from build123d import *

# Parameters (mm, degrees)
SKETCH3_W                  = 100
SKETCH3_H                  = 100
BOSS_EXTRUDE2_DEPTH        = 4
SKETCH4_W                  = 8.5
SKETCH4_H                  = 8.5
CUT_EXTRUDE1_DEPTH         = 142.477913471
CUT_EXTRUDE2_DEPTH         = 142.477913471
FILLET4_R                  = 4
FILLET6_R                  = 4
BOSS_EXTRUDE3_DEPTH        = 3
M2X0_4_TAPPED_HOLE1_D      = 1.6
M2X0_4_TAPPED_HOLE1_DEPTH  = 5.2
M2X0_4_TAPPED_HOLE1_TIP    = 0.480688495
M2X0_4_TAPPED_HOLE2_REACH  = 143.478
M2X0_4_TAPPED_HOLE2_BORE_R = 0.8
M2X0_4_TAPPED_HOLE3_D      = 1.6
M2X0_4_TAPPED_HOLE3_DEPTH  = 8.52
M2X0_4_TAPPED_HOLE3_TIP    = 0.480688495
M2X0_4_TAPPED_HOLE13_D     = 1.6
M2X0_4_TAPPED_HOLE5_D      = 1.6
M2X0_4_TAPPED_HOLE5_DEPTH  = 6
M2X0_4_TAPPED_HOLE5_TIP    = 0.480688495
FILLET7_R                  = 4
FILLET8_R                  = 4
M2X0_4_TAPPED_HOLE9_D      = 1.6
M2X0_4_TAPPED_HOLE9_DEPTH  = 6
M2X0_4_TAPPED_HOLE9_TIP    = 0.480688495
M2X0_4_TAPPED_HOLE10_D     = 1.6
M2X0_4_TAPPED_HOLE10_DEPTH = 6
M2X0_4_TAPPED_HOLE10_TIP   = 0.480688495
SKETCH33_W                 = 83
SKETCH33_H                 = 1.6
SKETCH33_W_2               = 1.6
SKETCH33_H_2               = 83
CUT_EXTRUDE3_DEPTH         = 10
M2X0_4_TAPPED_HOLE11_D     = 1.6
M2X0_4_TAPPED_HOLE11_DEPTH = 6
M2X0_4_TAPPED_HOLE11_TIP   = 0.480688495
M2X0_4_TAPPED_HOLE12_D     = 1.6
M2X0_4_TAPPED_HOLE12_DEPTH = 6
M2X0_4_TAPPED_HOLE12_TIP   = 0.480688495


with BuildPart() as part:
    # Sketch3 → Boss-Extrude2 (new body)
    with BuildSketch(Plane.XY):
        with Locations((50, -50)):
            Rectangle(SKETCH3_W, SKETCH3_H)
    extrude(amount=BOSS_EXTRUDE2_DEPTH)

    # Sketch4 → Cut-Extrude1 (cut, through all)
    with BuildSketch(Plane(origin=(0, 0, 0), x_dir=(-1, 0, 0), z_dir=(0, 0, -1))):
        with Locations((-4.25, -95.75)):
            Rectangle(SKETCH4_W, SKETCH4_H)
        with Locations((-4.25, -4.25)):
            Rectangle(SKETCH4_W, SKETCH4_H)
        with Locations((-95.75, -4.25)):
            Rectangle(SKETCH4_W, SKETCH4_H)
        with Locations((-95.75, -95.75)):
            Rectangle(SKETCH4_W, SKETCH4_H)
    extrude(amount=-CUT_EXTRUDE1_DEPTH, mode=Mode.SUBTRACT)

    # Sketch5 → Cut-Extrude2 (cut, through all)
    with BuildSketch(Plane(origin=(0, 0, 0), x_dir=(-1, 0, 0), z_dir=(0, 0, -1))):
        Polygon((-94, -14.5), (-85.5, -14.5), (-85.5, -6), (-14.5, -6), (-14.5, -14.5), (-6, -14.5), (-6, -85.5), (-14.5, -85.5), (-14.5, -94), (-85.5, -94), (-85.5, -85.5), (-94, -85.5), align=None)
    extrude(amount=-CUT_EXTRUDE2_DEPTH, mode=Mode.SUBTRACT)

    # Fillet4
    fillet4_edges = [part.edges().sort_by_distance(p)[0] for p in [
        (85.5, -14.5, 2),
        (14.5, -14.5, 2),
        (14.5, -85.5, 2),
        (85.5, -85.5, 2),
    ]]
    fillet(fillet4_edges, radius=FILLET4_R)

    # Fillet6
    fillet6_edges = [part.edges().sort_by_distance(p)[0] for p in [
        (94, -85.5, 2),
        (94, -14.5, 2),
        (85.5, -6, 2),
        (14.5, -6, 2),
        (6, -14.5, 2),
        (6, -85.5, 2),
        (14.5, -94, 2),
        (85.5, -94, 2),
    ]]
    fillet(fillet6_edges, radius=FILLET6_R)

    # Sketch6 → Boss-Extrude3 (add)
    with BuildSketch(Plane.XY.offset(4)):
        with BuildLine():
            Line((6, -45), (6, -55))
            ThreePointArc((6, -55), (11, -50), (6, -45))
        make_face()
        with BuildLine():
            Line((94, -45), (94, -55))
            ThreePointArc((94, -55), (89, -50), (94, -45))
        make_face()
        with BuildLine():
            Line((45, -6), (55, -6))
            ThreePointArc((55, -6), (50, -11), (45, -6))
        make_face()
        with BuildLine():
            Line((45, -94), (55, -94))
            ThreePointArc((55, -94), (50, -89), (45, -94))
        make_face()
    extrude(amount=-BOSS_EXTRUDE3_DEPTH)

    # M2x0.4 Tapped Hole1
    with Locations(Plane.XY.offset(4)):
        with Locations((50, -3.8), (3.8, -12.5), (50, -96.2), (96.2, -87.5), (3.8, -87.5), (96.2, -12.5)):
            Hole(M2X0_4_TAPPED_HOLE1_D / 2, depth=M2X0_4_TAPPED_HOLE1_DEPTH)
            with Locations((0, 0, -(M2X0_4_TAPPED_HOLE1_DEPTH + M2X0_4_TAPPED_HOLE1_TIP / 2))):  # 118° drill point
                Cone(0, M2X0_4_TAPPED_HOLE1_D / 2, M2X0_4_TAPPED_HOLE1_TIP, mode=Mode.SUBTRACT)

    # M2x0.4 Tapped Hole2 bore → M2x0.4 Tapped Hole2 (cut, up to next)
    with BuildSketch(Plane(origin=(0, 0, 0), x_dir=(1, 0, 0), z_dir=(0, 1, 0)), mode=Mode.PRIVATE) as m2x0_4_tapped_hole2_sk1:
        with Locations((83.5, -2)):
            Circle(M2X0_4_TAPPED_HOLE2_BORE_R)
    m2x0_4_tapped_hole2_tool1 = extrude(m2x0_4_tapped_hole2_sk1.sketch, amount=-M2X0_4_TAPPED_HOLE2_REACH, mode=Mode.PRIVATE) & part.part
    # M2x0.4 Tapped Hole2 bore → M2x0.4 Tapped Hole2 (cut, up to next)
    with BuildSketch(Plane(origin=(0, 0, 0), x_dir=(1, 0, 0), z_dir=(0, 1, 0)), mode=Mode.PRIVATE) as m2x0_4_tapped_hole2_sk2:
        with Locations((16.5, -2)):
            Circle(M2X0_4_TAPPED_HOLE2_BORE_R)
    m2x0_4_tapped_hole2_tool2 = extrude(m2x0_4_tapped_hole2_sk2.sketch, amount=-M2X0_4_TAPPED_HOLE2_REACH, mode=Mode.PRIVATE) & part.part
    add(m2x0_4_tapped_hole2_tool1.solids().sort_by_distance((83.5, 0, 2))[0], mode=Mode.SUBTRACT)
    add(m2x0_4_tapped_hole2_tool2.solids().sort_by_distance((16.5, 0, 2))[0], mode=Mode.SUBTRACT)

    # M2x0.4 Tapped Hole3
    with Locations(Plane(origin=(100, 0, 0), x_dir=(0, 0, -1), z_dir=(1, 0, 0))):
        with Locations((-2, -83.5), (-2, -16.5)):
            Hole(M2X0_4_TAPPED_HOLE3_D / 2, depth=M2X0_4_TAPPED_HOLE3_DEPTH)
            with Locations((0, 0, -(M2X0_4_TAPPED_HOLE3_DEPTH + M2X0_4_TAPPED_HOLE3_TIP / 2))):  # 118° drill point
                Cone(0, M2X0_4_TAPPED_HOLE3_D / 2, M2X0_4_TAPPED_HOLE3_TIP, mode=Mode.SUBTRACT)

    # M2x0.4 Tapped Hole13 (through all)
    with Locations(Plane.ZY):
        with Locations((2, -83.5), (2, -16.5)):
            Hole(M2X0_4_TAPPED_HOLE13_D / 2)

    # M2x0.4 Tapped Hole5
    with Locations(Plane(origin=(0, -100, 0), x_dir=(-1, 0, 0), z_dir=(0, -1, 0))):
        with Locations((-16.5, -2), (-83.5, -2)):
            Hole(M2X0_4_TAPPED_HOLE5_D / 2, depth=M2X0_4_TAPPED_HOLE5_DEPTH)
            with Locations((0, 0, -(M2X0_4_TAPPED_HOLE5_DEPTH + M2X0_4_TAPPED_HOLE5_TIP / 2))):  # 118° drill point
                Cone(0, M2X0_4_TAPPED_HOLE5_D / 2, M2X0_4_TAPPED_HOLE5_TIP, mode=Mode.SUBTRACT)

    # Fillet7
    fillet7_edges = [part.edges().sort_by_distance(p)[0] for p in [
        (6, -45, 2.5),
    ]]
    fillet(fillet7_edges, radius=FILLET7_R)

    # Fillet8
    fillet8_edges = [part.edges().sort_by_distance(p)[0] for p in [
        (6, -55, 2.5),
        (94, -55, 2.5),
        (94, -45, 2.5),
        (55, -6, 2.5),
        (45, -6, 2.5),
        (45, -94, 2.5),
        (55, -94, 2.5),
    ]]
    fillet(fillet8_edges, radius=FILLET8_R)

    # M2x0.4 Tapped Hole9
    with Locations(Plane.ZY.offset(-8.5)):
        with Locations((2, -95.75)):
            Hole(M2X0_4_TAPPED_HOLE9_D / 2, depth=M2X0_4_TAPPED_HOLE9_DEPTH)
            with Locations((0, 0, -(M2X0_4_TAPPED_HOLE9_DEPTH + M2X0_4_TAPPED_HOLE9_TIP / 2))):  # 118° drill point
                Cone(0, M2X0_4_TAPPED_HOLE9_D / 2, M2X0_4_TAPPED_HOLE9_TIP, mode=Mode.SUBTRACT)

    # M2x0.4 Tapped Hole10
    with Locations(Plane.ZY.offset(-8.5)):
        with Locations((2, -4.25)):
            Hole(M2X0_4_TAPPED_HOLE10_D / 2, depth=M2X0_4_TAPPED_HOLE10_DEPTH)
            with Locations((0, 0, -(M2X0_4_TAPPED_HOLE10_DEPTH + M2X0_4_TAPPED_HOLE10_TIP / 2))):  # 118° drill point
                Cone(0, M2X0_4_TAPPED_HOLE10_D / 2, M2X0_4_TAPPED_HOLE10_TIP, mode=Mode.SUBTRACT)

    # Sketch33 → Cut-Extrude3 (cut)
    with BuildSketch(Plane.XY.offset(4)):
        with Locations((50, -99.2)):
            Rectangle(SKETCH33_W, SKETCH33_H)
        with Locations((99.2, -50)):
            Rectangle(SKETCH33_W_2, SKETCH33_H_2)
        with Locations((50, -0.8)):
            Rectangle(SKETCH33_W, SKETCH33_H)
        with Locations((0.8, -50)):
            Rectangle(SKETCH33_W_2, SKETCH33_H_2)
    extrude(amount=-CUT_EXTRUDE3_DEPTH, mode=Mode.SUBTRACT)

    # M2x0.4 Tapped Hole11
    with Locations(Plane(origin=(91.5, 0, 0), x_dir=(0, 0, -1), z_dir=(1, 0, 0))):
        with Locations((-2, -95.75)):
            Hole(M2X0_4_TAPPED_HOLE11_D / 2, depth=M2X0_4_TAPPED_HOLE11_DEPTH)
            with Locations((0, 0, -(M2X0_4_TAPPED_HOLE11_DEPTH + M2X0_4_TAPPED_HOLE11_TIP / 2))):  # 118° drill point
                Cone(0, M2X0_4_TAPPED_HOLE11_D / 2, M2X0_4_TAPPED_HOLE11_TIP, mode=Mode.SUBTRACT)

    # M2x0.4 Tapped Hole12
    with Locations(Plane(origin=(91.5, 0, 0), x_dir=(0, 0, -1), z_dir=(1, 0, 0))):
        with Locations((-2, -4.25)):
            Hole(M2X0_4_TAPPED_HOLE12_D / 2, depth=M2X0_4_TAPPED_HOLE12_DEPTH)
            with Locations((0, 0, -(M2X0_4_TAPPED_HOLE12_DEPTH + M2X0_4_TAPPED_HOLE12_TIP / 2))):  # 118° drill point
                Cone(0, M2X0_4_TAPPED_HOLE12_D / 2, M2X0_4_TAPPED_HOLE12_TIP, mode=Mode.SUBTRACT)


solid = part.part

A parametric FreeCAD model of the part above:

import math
import FreeCAD as App
import Part
import Sketcher
from FreeCAD import Vector
Q = App.Units.Quantity


def edges_at(feature, points):
    """Names of the edges that pass closest to the given points."""
    edges = feature.Shape.Edges
    near = lambda p: min(range(len(edges)), key=lambda i: edges[i].distToShape(Part.Vertex(*p))[0])
    return sorted({f"Edge{near(p) + 1}" for p in points})


def add_polygon(sketch, points):
    """Adds a closed chain of lines whose ends are joined by coincident constraints."""
    first, n = sketch.GeometryCount, len(points)
    for a, b in zip(points, points[1:] + points[:1]):
        sketch.addGeometry(Part.LineSegment(App.Vector(*a, 0), App.Vector(*b, 0)), False)
    for i in range(n):
        sketch.addConstraint(Sketcher.Constraint("Coincident", first + i, 2, first + (i + 1) % n, 1))

doc = App.newDocument("Part")
body = doc.addObject("PartDesign::Body", "Body")

sketch1 = body.newObject("Sketcher::SketchObject", "Sketch")
sketch1.AttachmentSupport = (doc.getObject("XY_Plane"), [""])
sketch1.MapMode = "FlatFace"
add_polygon(sketch1, [(0, 0), (0, -100), (100, -100), (100, 0)])
sketch1.addConstraint(Sketcher.Constraint("Vertical", 0))
sketch1.addConstraint(Sketcher.Constraint("Horizontal", 1))
sketch1.addConstraint(Sketcher.Constraint("Vertical", 2))
sketch1.addConstraint(Sketcher.Constraint("Horizontal", 3))
sketch1.addConstraint(Sketcher.Constraint("Coincident", 3, 2, -1, 1))
sketch1.addConstraint(Sketcher.Constraint("Equal", 3, 0))
sketch1.addConstraint(Sketcher.Constraint("DistanceX", 1, 1, 1, 2, Q("100 mm")))
pad1 = body.newObject("PartDesign::Pad", "Pad")
pad1.Profile = sketch1
pad1.Length = 4

sketch2 = body.newObject("Sketcher::SketchObject", "Sketch001")
sketch2.AttachmentSupport = (doc.getObject("XY_Plane"), [""])
sketch2.MapMode = "FlatFace"
add_polygon(sketch2, [(8, -92), (8, -100), (0, -100), (0, -92)])
add_polygon(sketch2, [(8, 0), (8, -8), (0, -8), (0, 0)])
add_polygon(sketch2, [(100, 0), (100, -8), (92, -8), (92, 0)])
add_polygon(sketch2, [(100, -92), (100, -100), (92, -100), (92, -92)])
sketch2.addConstraint(Sketcher.Constraint("Vertical", 0))
sketch2.addConstraint(Sketcher.Constraint("Horizontal", 1))
sketch2.addConstraint(Sketcher.Constraint("Vertical", 2))
sketch2.addConstraint(Sketcher.Constraint("Horizontal", 3))
sketch2.addConstraint(Sketcher.Constraint("Vertical", 4))
sketch2.addConstraint(Sketcher.Constraint("Horizontal", 5))
sketch2.addConstraint(Sketcher.Constraint("Vertical", 6))
sketch2.addConstraint(Sketcher.Constraint("Horizontal", 7))
sketch2.addConstraint(Sketcher.Constraint("Vertical", 8))
sketch2.addConstraint(Sketcher.Constraint("Horizontal", 9))
sketch2.addConstraint(Sketcher.Constraint("Vertical", 10))
sketch2.addConstraint(Sketcher.Constraint("Horizontal", 11))
sketch2.addConstraint(Sketcher.Constraint("Vertical", 12))
sketch2.addConstraint(Sketcher.Constraint("Horizontal", 13))
sketch2.addConstraint(Sketcher.Constraint("Vertical", 14))
sketch2.addConstraint(Sketcher.Constraint("Horizontal", 15))
sketch2.addConstraint(Sketcher.Constraint("Coincident", 6, 2, -1, 1))
sketch2.addConstraint(Sketcher.Constraint("PointOnObject", 1, 2, -2))
sketch2.addConstraint(Sketcher.Constraint("PointOnObject", 10, 2, -1))
sketch2.addConstraint(Sketcher.Constraint("Horizontal", 5, 2, 8, 2))
sketch2.addConstraint(Sketcher.Constraint("Horizontal", 1, 2, 12, 2))
sketch2.addConstraint(Sketcher.Constraint("Horizontal", 3, 2, 14, 2))
sketch2.addConstraint(Sketcher.Constraint("Vertical", 3, 2, 4, 2))
sketch2.addConstraint(Sketcher.Constraint("Vertical", 11, 2, 12, 2))
sketch2.addConstraint(Sketcher.Constraint("Vertical", 10, 2, 13, 2))
sketch2.addConstraint(Sketcher.Constraint("Equal", 7, 9))
sketch2.addConstraint(Sketcher.Constraint("Equal", 15, 0))
sketch2.addConstraint(Sketcher.Constraint("Equal", 2, 4))
sketch2.addConstraint(Sketcher.Constraint("DistanceX", 1, 2, 1, 1, Q("8.5 mm")))
sketch2.addConstraint(Sketcher.Constraint("DistanceY", 0, 2, -1, 1, Q("100 mm")))
sketch2.addConstraint(Sketcher.Constraint("DistanceX", -1, 1, 8, 2, Q("100 mm")))
pocket1 = body.newObject("PartDesign::Pocket", "Pocket")
pocket1.Profile = sketch2
pocket1.Type = "ThroughAll"
pocket1.Reversed = True

sketch3 = body.newObject("Sketcher::SketchObject", "Sketch002")
sketch3.AttachmentSupport = (doc.getObject("XY_Plane"), [""])
sketch3.MapMode = "FlatFace"
add_polygon(sketch3, [(86, -14), (94, -14), (94, -86), (86, -86), (86, -94), (14, -94), (14, -86), (6, -86), (6, -14), (14, -14), (14, -6), (86, -6)])
sketch3.addConstraint(Sketcher.Constraint("Horizontal", 0))
sketch3.addConstraint(Sketcher.Constraint("Vertical", 1))
sketch3.addConstraint(Sketcher.Constraint("Horizontal", 2))
sketch3.addConstraint(Sketcher.Constraint("Vertical", 3))
sketch3.addConstraint(Sketcher.Constraint("Horizontal", 4))
sketch3.addConstraint(Sketcher.Constraint("Vertical", 5))
sketch3.addConstraint(Sketcher.Constraint("Horizontal", 6))
sketch3.addConstraint(Sketcher.Constraint("Vertical", 7))
sketch3.addConstraint(Sketcher.Constraint("Horizontal", 8))
sketch3.addConstraint(Sketcher.Constraint("Vertical", 9))
sketch3.addConstraint(Sketcher.Constraint("Horizontal", 10))
sketch3.addConstraint(Sketcher.Constraint("Vertical", 11))
sketch3.addConstraint(Sketcher.Constraint("Horizontal", 2, 2, 5, 2))
sketch3.addConstraint(Sketcher.Constraint("Horizontal", 0, 2, 7, 2))
sketch3.addConstraint(Sketcher.Constraint("Vertical", 5, 2, 8, 2))
sketch3.addConstraint(Sketcher.Constraint("Vertical", 3, 2, 10, 2))
sketch3.addConstraint(Sketcher.Constraint("Equal", 2, 6))
sketch3.addConstraint(Sketcher.Constraint("Equal", 10, 1))
sketch3.addConstraint(Sketcher.Constraint("Equal", 8, 3))
sketch3.addConstraint(Sketcher.Constraint("Equal", 5, 9))
sketch3.addConstraint(Sketcher.Constraint("DistanceX", 4, 2, 4, 1, Q("71 mm")))
sketch3.addConstraint(Sketcher.Constraint("DistanceX", 0, 1, 0, 2, Q("8.5 mm")))
sketch3.addConstraint(Sketcher.Constraint("DistanceX", -1, 1, 0, 2, Q("94 mm")))
sketch3.addConstraint(Sketcher.Constraint("DistanceY", 3, 2, -1, 1, Q("94 mm")))
pocket2 = body.newObject("PartDesign::Pocket", "Pocket001")
pocket2.Profile = sketch3
pocket2.Type = "ThroughAll"
pocket2.Reversed = True
doc.recompute()

fillet = body.newObject("PartDesign::Fillet", "Fillet")
fillet.Base = (pocket2, edges_at(pocket2, [
    (85.5, -14.5, 2),
    (14.5, -14.5, 2),
    (14.5, -85.5, 2),
    (85.5, -85.5, 2),
]))
fillet.Radius = 4
doc.recompute()

fillet2 = body.newObject("PartDesign::Fillet", "Fillet001")
fillet2.Base = (fillet, edges_at(fillet, [
    (94, -85.5, 2),
    (94, -14.5, 2),
    (85.5, -6, 2),
    (14.5, -6, 2),
    (6, -14.5, 2),
    (6, -85.5, 2),
    (14.5, -94, 2),
    (85.5, -94, 2),
]))
fillet2.Radius = 4

sketch4 = body.newObject("Sketcher::SketchObject", "Sketch003")
sketch4.AttachmentSupport = (doc.getObject("XY_Plane"), [""])
sketch4.MapMode = "FlatFace"
sketch4.AttachmentOffset = App.Placement(Vector(0, 0, 4), App.Rotation())
sketch4.addGeometry(Part.LineSegment(Vector(6, -45, 0), Vector(6, -55, 0)), False)
sketch4.addGeometry(Part.ArcOfCircle(Part.Circle(Vector(6, -50, 0), Vector(0, 0, 1), 5), math.radians(-90), math.radians(90)), False)
sketch4.addGeometry(Part.LineSegment(Vector(94, -55, 0), Vector(94, -45, 0)), False)
sketch4.addGeometry(Part.ArcOfCircle(Part.Circle(Vector(94, -50, 0), Vector(0, 0, 1), 5), math.radians(90), math.radians(270)), False)
sketch4.addGeometry(Part.LineSegment(Vector(55, -6, 0), Vector(45, -6, 0)), False)
sketch4.addGeometry(Part.ArcOfCircle(Part.Circle(Vector(50, -6, 0), Vector(0, 0, 1), 5), math.radians(180), math.radians(360)), False)
sketch4.addGeometry(Part.LineSegment(Vector(45, -94, 0), Vector(55, -94, 0)), False)
sketch4.addGeometry(Part.ArcOfCircle(Part.Circle(Vector(50, -94, 0), Vector(0, 0, 1), 5), math.radians(0), math.radians(180)), False)
sketch4.addConstraint(Sketcher.Constraint("Coincident", 0, 1, 1, 2))
sketch4.addConstraint(Sketcher.Constraint("Coincident", 1, 1, 0, 2))
sketch4.addConstraint(Sketcher.Constraint("Coincident", 2, 1, 3, 2))
sketch4.addConstraint(Sketcher.Constraint("Coincident", 3, 1, 2, 2))
sketch4.addConstraint(Sketcher.Constraint("Coincident", 4, 1, 5, 2))
sketch4.addConstraint(Sketcher.Constraint("Coincident", 5, 1, 4, 2))
sketch4.addConstraint(Sketcher.Constraint("Coincident", 6, 1, 7, 2))
sketch4.addConstraint(Sketcher.Constraint("Coincident", 7, 1, 6, 2))
sketch4.addConstraint(Sketcher.Constraint("Vertical", 0))
sketch4.addConstraint(Sketcher.Constraint("Vertical", 2))
sketch4.addConstraint(Sketcher.Constraint("Horizontal", 4))
sketch4.addConstraint(Sketcher.Constraint("Horizontal", 6))
sketch4.addConstraint(Sketcher.Constraint("Equal", 1, 3))
sketch4.addConstraint(Sketcher.Constraint("Equal", 3, 5))
sketch4.addConstraint(Sketcher.Constraint("Equal", 5, 7))
sketch4.addConstraint(Sketcher.Constraint("Horizontal", 1, 3, 3, 3))
sketch4.addConstraint(Sketcher.Constraint("Horizontal", 5, 3, 4, 1))
sketch4.addConstraint(Sketcher.Constraint("Horizontal", 7, 3, 6, 1))
sketch4.addConstraint(Sketcher.Constraint("Vertical", 5, 3, 7, 3))
sketch4.addConstraint(Sketcher.Constraint("Vertical", 1, 3, 0, 1))
sketch4.addConstraint(Sketcher.Constraint("Vertical", 3, 3, 2, 1))
sketch4.addConstraint(Sketcher.Constraint("Radius", 1, Q("5 mm")))
sketch4.addConstraint(Sketcher.Constraint("DistanceX", -1, 1, 1, 3, Q("6 mm")))
sketch4.addConstraint(Sketcher.Constraint("DistanceY", 1, 3, -1, 1, Q("50 mm")))
sketch4.addConstraint(Sketcher.Constraint("DistanceX", -1, 1, 3, 3, Q("94 mm")))
sketch4.addConstraint(Sketcher.Constraint("DistanceX", -1, 1, 5, 3, Q("50 mm")))
sketch4.addConstraint(Sketcher.Constraint("DistanceY", 5, 3, -1, 1, Q("6 mm")))
sketch4.addConstraint(Sketcher.Constraint("DistanceY", 7, 3, -1, 1, Q("94 mm")))
pad2 = body.newObject("PartDesign::Pad", "Pad001")
pad2.Profile = sketch4
pad2.Length = 3
pad2.Reversed = True

sketch5 = body.newObject("Sketcher::SketchObject", "Sketch004")
sketch5.AttachmentSupport = (doc.getObject("XY_Plane"), [""])
sketch5.MapMode = "FlatFace"
sketch5.AttachmentOffset = App.Placement(Vector(0, 0, 4), App.Rotation())
sketch5.addGeometry(Part.Circle(Vector(50, -3.8, 0), Vector(0, 0, 1), 0.8), False)
sketch5.addGeometry(Part.Circle(Vector(3.8, -12.5, 0), Vector(0, 0, 1), 0.8), False)
sketch5.addGeometry(Part.Circle(Vector(50, -96.2, 0), Vector(0, 0, 1), 0.8), False)
sketch5.addGeometry(Part.Circle(Vector(96.2, -87.5, 0), Vector(0, 0, 1), 0.8), False)
sketch5.addGeometry(Part.Circle(Vector(3.8, -87.5, 0), Vector(0, 0, 1), 0.8), False)
sketch5.addGeometry(Part.Circle(Vector(96.2, -12.5, 0), Vector(0, 0, 1), 0.8), False)
sketch5.addConstraint(Sketcher.Constraint("Equal", 0, 1))
sketch5.addConstraint(Sketcher.Constraint("Equal", 1, 2))
sketch5.addConstraint(Sketcher.Constraint("Equal", 2, 3))
sketch5.addConstraint(Sketcher.Constraint("Equal", 3, 4))
sketch5.addConstraint(Sketcher.Constraint("Equal", 4, 5))
sketch5.addConstraint(Sketcher.Constraint("Horizontal", 3, 3, 4, 3))
sketch5.addConstraint(Sketcher.Constraint("Horizontal", 1, 3, 5, 3))
sketch5.addConstraint(Sketcher.Constraint("Vertical", 0, 3, 2, 3))
sketch5.addConstraint(Sketcher.Constraint("Vertical", 1, 3, 4, 3))
sketch5.addConstraint(Sketcher.Constraint("Vertical", 3, 3, 5, 3))
sketch5.addConstraint(Sketcher.Constraint("Diameter", 0, Q("1.6 mm")))
sketch5.addConstraint(Sketcher.Constraint("DistanceX", -1, 1, 0, 3, Q("50 mm")))
sketch5.addConstraint(Sketcher.Constraint("DistanceY", 3, 3, 1, 3, Q("75 mm")))
sketch5.addConstraint(Sketcher.Constraint("DistanceY", 0, 3, -1, 1, Q("3.8 mm")))
sketch5.addConstraint(Sketcher.Constraint("DistanceX", -1, 1, 1, 3, Q("3.8 mm")))
sketch5.addConstraint(Sketcher.Constraint("DistanceY", 1, 3, -1, 1, Q("12.5 mm")))
sketch5.addConstraint(Sketcher.Constraint("DistanceY", 2, 3, -1, 1, Q("96.2 mm")))
sketch5.addConstraint(Sketcher.Constraint("DistanceX", -1, 1, 3, 3, Q("96.2 mm")))
doc.recompute()
hole = body.newObject("PartDesign::Hole", "Hole")
hole.Profile = sketch5
hole.ThreadType = "None"
hole.Diameter = 1.6
hole.DepthType = "Dimension"
hole.Depth = 5.2
hole.DrillPoint = "Angled"
hole.DrillPointAngle = 118

sketch6 = body.newObject("Sketcher::SketchObject", "Sketch005")
sketch6.AttachmentSupport = (doc.getObject("XZ_Plane"), [""])
sketch6.MapMode = "FlatFace"
sketch6.addGeometry(Part.Circle(Vector(83.5, 2, 0), Vector(0, 0, 1), 0.8), False)
sketch6.addConstraint(Sketcher.Constraint("Diameter", 0, Q("1.6 mm")))
sketch6.addConstraint(Sketcher.Constraint("DistanceY", -1, 1, 0, 3, Q("2 mm")))
sketch6.addConstraint(Sketcher.Constraint("DistanceX", -1, 1, 0, 3, Q("83.5 mm")))
pocket3 = body.newObject("PartDesign::Pocket", "Pocket002")
pocket3.Profile = sketch6
pocket3.Type = "UpToFirst"
pocket3.Reversed = True

sketch7 = body.newObject("Sketcher::SketchObject", "Sketch006")
sketch7.AttachmentSupport = (doc.getObject("XZ_Plane"), [""])
sketch7.MapMode = "FlatFace"
sketch7.addGeometry(Part.Circle(Vector(16.5, 2, 0), Vector(0, 0, 1), 0.8), False)
sketch7.addConstraint(Sketcher.Constraint("Diameter", 0, Q("1.6 mm")))
sketch7.addConstraint(Sketcher.Constraint("DistanceY", -1, 1, 0, 3, Q("2 mm")))
sketch7.addConstraint(Sketcher.Constraint("DistanceX", -1, 1, 0, 3, Q("16.5 mm")))
pocket4 = body.newObject("PartDesign::Pocket", "Pocket003")
pocket4.Profile = sketch7
pocket4.Type = "UpToFirst"
pocket4.Reversed = True

sketch8 = body.newObject("Sketcher::SketchObject", "Sketch007")
sketch8.AttachmentSupport = (doc.getObject("YZ_Plane"), [""])
sketch8.MapMode = "FlatFace"
sketch8.AttachmentOffset = App.Placement(Vector(0, 0, 100), App.Rotation())
sketch8.addGeometry(Part.Circle(Vector(-83.5, 2, 0), Vector(0, 0, 1), 0.8), False)
sketch8.addGeometry(Part.Circle(Vector(-16.5, 2, 0), Vector(0, 0, 1), 0.8), False)
sketch8.addConstraint(Sketcher.Constraint("Equal", 0, 1))
sketch8.addConstraint(Sketcher.Constraint("Horizontal", 0, 3, 1, 3))
sketch8.addConstraint(Sketcher.Constraint("Diameter", 0, Q("1.6 mm")))
sketch8.addConstraint(Sketcher.Constraint("DistanceY", -1, 1, 0, 3, Q("2 mm")))
sketch8.addConstraint(Sketcher.Constraint("DistanceX", 0, 3, 1, 3, Q("67 mm")))
sketch8.addConstraint(Sketcher.Constraint("DistanceX", 0, 3, -1, 1, Q("83.5 mm")))
doc.recompute()
hole2 = body.newObject("PartDesign::Hole", "Hole001")
hole2.Profile = sketch8
hole2.ThreadType = "None"
hole2.Diameter = 1.6
hole2.DepthType = "Dimension"
hole2.Depth = 8.52
hole2.DrillPoint = "Angled"
hole2.DrillPointAngle = 118

sketch9 = body.newObject("Sketcher::SketchObject", "Sketch008")
sketch9.AttachmentSupport = (doc.getObject("YZ_Plane"), [""])
sketch9.MapMode = "FlatFace"
sketch9.addGeometry(Part.Circle(Vector(-83.5, 2, 0), Vector(0, 0, 1), 0.8), False)
sketch9.addGeometry(Part.Circle(Vector(-16.5, 2, 0), Vector(0, 0, 1), 0.8), False)
sketch9.addConstraint(Sketcher.Constraint("Equal", 0, 1))
sketch9.addConstraint(Sketcher.Constraint("Horizontal", 0, 3, 1, 3))
sketch9.addConstraint(Sketcher.Constraint("Diameter", 0, Q("1.6 mm")))
sketch9.addConstraint(Sketcher.Constraint("DistanceY", -1, 1, 0, 3, Q("2 mm")))
sketch9.addConstraint(Sketcher.Constraint("DistanceX", 0, 3, 1, 3, Q("67 mm")))
sketch9.addConstraint(Sketcher.Constraint("DistanceX", 0, 3, -1, 1, Q("83.5 mm")))
doc.recompute()
hole3 = body.newObject("PartDesign::Hole", "Hole002")
hole3.Profile = sketch9
hole3.ThreadType = "None"
hole3.Diameter = 1.6
hole3.DepthType = "ThroughAll"
hole3.Reversed = True

sketch10 = body.newObject("Sketcher::SketchObject", "Sketch009")
sketch10.AttachmentSupport = (doc.getObject("XZ_Plane"), [""])
sketch10.MapMode = "FlatFace"
sketch10.AttachmentOffset = App.Placement(Vector(0, 0, 100), App.Rotation())
sketch10.addGeometry(Part.Circle(Vector(16.5, 2, 0), Vector(0, 0, 1), 0.8), False)
sketch10.addGeometry(Part.Circle(Vector(83.5, 2, 0), Vector(0, 0, 1), 0.8), False)
sketch10.addConstraint(Sketcher.Constraint("Equal", 0, 1))
sketch10.addConstraint(Sketcher.Constraint("Horizontal", 0, 3, 1, 3))
sketch10.addConstraint(Sketcher.Constraint("Diameter", 0, Q("1.6 mm")))
sketch10.addConstraint(Sketcher.Constraint("DistanceY", -1, 1, 0, 3, Q("2 mm")))
sketch10.addConstraint(Sketcher.Constraint("DistanceX", 0, 3, 1, 3, Q("67 mm")))
sketch10.addConstraint(Sketcher.Constraint("DistanceX", -1, 1, 0, 3, Q("16.5 mm")))
doc.recompute()
hole4 = body.newObject("PartDesign::Hole", "Hole003")
hole4.Profile = sketch10
hole4.ThreadType = "None"
hole4.Diameter = 1.6
hole4.DepthType = "Dimension"
hole4.Depth = 6
hole4.DrillPoint = "Angled"
hole4.DrillPointAngle = 118
doc.recompute()

fillet3 = body.newObject("PartDesign::Fillet", "Fillet002")
fillet3.Base = (hole4, edges_at(hole4, [(6, -45, 2.5)]))
fillet3.Radius = 4
doc.recompute()

fillet4 = body.newObject("PartDesign::Fillet", "Fillet003")
fillet4.Base = (fillet3, edges_at(fillet3, [
    (6, -55, 2.5),
    (94, -55, 2.5),
    (94, -45, 2.5),
    (55, -6, 2.5),
    (45, -6, 2.5),
    (45, -94, 2.5),
    (55, -94, 2.5),
]))
fillet4.Radius = 4

sketch11 = body.newObject("Sketcher::SketchObject", "Sketch010")
sketch11.AttachmentSupport = (doc.getObject("YZ_Plane"), [""])
sketch11.MapMode = "FlatFace"
sketch11.AttachmentOffset = App.Placement(Vector(0, 0, 8.5), App.Rotation())
sketch11.addGeometry(Part.Circle(Vector(-95.8, 2, 0), Vector(0, 0, 1), 0.8), False)
sketch11.addConstraint(Sketcher.Constraint("Diameter", 0, Q("1.6 mm")))
sketch11.addConstraint(Sketcher.Constraint("DistanceY", -1, 1, 0, 3, Q("2 mm")))
sketch11.addConstraint(Sketcher.Constraint("DistanceX", 0, 3, -1, 1, Q("95.75 mm")))
doc.recompute()
hole5 = body.newObject("PartDesign::Hole", "Hole004")
hole5.Profile = sketch11
hole5.ThreadType = "None"
hole5.Diameter = 1.6
hole5.DepthType = "Dimension"
hole5.Depth = 6
hole5.DrillPoint = "Angled"
hole5.DrillPointAngle = 118
hole5.Reversed = True

sketch12 = body.newObject("Sketcher::SketchObject", "Sketch011")
sketch12.AttachmentSupport = (doc.getObject("YZ_Plane"), [""])
sketch12.MapMode = "FlatFace"
sketch12.AttachmentOffset = App.Placement(Vector(0, 0, 8.5), App.Rotation())
sketch12.addGeometry(Part.Circle(Vector(-4.2, 2, 0), Vector(0, 0, 1), 0.8), False)
sketch12.addConstraint(Sketcher.Constraint("Diameter", 0, Q("1.6 mm")))
sketch12.addConstraint(Sketcher.Constraint("DistanceY", -1, 1, 0, 3, Q("2 mm")))
sketch12.addConstraint(Sketcher.Constraint("DistanceX", 0, 3, -1, 1, Q("4.25 mm")))
doc.recompute()
hole6 = body.newObject("PartDesign::Hole", "Hole005")
hole6.Profile = sketch12
hole6.ThreadType = "None"
hole6.Diameter = 1.6
hole6.DepthType = "Dimension"
hole6.Depth = 6
hole6.DrillPoint = "Angled"
hole6.DrillPointAngle = 118
hole6.Reversed = True

sketch13 = body.newObject("Sketcher::SketchObject", "Sketch012")
sketch13.AttachmentSupport = (doc.getObject("XY_Plane"), [""])
sketch13.MapMode = "FlatFace"
sketch13.AttachmentOffset = App.Placement(Vector(0, 0, 4), App.Rotation())
add_polygon(sketch13, [(8.5, -98.4), (8.5, -100), (91.5, -100), (91.5, -98.4)])
add_polygon(sketch13, [(98.4, -8.5), (98.4, -91.5), (100, -91.5), (100, -8.5)])
add_polygon(sketch13, [(8.5, 0), (8.5, -1.6), (91.5, -1.6), (91.5, 0)])
add_polygon(sketch13, [(0, -8.5), (0, -91.5), (1.6, -91.5), (1.6, -8.5)])
sketch13.addConstraint(Sketcher.Constraint("Vertical", 0))
sketch13.addConstraint(Sketcher.Constraint("Horizontal", 1))
sketch13.addConstraint(Sketcher.Constraint("Vertical", 2))
sketch13.addConstraint(Sketcher.Constraint("Horizontal", 3))
sketch13.addConstraint(Sketcher.Constraint("Vertical", 4))
sketch13.addConstraint(Sketcher.Constraint("Horizontal", 5))
sketch13.addConstraint(Sketcher.Constraint("Vertical", 6))
sketch13.addConstraint(Sketcher.Constraint("Horizontal", 7))
sketch13.addConstraint(Sketcher.Constraint("Vertical", 8))
sketch13.addConstraint(Sketcher.Constraint("Horizontal", 9))
sketch13.addConstraint(Sketcher.Constraint("Vertical", 10))
sketch13.addConstraint(Sketcher.Constraint("Horizontal", 11))
sketch13.addConstraint(Sketcher.Constraint("Vertical", 12))
sketch13.addConstraint(Sketcher.Constraint("Horizontal", 13))
sketch13.addConstraint(Sketcher.Constraint("Vertical", 14))
sketch13.addConstraint(Sketcher.Constraint("Horizontal", 15))
sketch13.addConstraint(Sketcher.Constraint("PointOnObject", 10, 2, -1))
sketch13.addConstraint(Sketcher.Constraint("PointOnObject", 12, 2, -2))
sketch13.addConstraint(Sketcher.Constraint("Horizontal", 5, 2, 12, 2))
sketch13.addConstraint(Sketcher.Constraint("Horizontal", 7, 2, 14, 2))
sketch13.addConstraint(Sketcher.Constraint("Vertical", 3, 2, 8, 2))
sketch13.addConstraint(Sketcher.Constraint("Vertical", 2, 2, 9, 2))
sketch13.addConstraint(Sketcher.Constraint("Equal", 7, 13))
sketch13.addConstraint(Sketcher.Constraint("Equal", 15, 0))
sketch13.addConstraint(Sketcher.Constraint("Equal", 11, 4))
sketch13.addConstraint(Sketcher.Constraint("Equal", 2, 8))
sketch13.addConstraint(Sketcher.Constraint("DistanceX", 1, 1, 1, 2, Q("83 mm")))
sketch13.addConstraint(Sketcher.Constraint("DistanceX", 5, 1, 5, 2, Q("1.6 mm")))
sketch13.addConstraint(Sketcher.Constraint("DistanceY", 0, 2, -1, 1, Q("100 mm")))
sketch13.addConstraint(Sketcher.Constraint("DistanceX", -1, 1, 5, 2, Q("100 mm")))
sketch13.addConstraint(Sketcher.Constraint("DistanceX", -1, 1, 0, 2, Q("8.5 mm")))
sketch13.addConstraint(Sketcher.Constraint("DistanceY", 4, 2, -1, 1, Q("91.5 mm")))
pocket5 = body.newObject("PartDesign::Pocket", "Pocket004")
pocket5.Profile = sketch13
pocket5.Length = 10

sketch14 = body.newObject("Sketcher::SketchObject", "Sketch013")
sketch14.AttachmentSupport = (doc.getObject("YZ_Plane"), [""])
sketch14.MapMode = "FlatFace"
sketch14.AttachmentOffset = App.Placement(Vector(0, 0, 91.5), App.Rotation())
sketch14.addGeometry(Part.Circle(Vector(-95.8, 2, 0), Vector(0, 0, 1), 0.8), False)
sketch14.addConstraint(Sketcher.Constraint("Diameter", 0, Q("1.6 mm")))
sketch14.addConstraint(Sketcher.Constraint("DistanceY", -1, 1, 0, 3, Q("2 mm")))
sketch14.addConstraint(Sketcher.Constraint("DistanceX", 0, 3, -1, 1, Q("95.75 mm")))
doc.recompute()
hole7 = body.newObject("PartDesign::Hole", "Hole006")
hole7.Profile = sketch14
hole7.ThreadType = "None"
hole7.Diameter = 1.6
hole7.DepthType = "Dimension"
hole7.Depth = 6
hole7.DrillPoint = "Angled"
hole7.DrillPointAngle = 118

sketch15 = body.newObject("Sketcher::SketchObject", "Sketch014")
sketch15.AttachmentSupport = (doc.getObject("YZ_Plane"), [""])
sketch15.MapMode = "FlatFace"
sketch15.AttachmentOffset = App.Placement(Vector(0, 0, 91.5), App.Rotation())
sketch15.addGeometry(Part.Circle(Vector(-4.2, 2, 0), Vector(0, 0, 1), 0.8), False)
sketch15.addConstraint(Sketcher.Constraint("Diameter", 0, Q("1.6 mm")))
sketch15.addConstraint(Sketcher.Constraint("DistanceY", -1, 1, 0, 3, Q("2 mm")))
sketch15.addConstraint(Sketcher.Constraint("DistanceX", 0, 3, -1, 1, Q("4.25 mm")))
doc.recompute()
hole8 = body.newObject("PartDesign::Hole", "Hole007")
hole8.Profile = sketch15
hole8.ThreadType = "None"
hole8.Diameter = 1.6
hole8.DepthType = "Dimension"
hole8.Depth = 6
hole8.DrillPoint = "Angled"
hole8.DrillPointAngle = 118

doc.recompute()
